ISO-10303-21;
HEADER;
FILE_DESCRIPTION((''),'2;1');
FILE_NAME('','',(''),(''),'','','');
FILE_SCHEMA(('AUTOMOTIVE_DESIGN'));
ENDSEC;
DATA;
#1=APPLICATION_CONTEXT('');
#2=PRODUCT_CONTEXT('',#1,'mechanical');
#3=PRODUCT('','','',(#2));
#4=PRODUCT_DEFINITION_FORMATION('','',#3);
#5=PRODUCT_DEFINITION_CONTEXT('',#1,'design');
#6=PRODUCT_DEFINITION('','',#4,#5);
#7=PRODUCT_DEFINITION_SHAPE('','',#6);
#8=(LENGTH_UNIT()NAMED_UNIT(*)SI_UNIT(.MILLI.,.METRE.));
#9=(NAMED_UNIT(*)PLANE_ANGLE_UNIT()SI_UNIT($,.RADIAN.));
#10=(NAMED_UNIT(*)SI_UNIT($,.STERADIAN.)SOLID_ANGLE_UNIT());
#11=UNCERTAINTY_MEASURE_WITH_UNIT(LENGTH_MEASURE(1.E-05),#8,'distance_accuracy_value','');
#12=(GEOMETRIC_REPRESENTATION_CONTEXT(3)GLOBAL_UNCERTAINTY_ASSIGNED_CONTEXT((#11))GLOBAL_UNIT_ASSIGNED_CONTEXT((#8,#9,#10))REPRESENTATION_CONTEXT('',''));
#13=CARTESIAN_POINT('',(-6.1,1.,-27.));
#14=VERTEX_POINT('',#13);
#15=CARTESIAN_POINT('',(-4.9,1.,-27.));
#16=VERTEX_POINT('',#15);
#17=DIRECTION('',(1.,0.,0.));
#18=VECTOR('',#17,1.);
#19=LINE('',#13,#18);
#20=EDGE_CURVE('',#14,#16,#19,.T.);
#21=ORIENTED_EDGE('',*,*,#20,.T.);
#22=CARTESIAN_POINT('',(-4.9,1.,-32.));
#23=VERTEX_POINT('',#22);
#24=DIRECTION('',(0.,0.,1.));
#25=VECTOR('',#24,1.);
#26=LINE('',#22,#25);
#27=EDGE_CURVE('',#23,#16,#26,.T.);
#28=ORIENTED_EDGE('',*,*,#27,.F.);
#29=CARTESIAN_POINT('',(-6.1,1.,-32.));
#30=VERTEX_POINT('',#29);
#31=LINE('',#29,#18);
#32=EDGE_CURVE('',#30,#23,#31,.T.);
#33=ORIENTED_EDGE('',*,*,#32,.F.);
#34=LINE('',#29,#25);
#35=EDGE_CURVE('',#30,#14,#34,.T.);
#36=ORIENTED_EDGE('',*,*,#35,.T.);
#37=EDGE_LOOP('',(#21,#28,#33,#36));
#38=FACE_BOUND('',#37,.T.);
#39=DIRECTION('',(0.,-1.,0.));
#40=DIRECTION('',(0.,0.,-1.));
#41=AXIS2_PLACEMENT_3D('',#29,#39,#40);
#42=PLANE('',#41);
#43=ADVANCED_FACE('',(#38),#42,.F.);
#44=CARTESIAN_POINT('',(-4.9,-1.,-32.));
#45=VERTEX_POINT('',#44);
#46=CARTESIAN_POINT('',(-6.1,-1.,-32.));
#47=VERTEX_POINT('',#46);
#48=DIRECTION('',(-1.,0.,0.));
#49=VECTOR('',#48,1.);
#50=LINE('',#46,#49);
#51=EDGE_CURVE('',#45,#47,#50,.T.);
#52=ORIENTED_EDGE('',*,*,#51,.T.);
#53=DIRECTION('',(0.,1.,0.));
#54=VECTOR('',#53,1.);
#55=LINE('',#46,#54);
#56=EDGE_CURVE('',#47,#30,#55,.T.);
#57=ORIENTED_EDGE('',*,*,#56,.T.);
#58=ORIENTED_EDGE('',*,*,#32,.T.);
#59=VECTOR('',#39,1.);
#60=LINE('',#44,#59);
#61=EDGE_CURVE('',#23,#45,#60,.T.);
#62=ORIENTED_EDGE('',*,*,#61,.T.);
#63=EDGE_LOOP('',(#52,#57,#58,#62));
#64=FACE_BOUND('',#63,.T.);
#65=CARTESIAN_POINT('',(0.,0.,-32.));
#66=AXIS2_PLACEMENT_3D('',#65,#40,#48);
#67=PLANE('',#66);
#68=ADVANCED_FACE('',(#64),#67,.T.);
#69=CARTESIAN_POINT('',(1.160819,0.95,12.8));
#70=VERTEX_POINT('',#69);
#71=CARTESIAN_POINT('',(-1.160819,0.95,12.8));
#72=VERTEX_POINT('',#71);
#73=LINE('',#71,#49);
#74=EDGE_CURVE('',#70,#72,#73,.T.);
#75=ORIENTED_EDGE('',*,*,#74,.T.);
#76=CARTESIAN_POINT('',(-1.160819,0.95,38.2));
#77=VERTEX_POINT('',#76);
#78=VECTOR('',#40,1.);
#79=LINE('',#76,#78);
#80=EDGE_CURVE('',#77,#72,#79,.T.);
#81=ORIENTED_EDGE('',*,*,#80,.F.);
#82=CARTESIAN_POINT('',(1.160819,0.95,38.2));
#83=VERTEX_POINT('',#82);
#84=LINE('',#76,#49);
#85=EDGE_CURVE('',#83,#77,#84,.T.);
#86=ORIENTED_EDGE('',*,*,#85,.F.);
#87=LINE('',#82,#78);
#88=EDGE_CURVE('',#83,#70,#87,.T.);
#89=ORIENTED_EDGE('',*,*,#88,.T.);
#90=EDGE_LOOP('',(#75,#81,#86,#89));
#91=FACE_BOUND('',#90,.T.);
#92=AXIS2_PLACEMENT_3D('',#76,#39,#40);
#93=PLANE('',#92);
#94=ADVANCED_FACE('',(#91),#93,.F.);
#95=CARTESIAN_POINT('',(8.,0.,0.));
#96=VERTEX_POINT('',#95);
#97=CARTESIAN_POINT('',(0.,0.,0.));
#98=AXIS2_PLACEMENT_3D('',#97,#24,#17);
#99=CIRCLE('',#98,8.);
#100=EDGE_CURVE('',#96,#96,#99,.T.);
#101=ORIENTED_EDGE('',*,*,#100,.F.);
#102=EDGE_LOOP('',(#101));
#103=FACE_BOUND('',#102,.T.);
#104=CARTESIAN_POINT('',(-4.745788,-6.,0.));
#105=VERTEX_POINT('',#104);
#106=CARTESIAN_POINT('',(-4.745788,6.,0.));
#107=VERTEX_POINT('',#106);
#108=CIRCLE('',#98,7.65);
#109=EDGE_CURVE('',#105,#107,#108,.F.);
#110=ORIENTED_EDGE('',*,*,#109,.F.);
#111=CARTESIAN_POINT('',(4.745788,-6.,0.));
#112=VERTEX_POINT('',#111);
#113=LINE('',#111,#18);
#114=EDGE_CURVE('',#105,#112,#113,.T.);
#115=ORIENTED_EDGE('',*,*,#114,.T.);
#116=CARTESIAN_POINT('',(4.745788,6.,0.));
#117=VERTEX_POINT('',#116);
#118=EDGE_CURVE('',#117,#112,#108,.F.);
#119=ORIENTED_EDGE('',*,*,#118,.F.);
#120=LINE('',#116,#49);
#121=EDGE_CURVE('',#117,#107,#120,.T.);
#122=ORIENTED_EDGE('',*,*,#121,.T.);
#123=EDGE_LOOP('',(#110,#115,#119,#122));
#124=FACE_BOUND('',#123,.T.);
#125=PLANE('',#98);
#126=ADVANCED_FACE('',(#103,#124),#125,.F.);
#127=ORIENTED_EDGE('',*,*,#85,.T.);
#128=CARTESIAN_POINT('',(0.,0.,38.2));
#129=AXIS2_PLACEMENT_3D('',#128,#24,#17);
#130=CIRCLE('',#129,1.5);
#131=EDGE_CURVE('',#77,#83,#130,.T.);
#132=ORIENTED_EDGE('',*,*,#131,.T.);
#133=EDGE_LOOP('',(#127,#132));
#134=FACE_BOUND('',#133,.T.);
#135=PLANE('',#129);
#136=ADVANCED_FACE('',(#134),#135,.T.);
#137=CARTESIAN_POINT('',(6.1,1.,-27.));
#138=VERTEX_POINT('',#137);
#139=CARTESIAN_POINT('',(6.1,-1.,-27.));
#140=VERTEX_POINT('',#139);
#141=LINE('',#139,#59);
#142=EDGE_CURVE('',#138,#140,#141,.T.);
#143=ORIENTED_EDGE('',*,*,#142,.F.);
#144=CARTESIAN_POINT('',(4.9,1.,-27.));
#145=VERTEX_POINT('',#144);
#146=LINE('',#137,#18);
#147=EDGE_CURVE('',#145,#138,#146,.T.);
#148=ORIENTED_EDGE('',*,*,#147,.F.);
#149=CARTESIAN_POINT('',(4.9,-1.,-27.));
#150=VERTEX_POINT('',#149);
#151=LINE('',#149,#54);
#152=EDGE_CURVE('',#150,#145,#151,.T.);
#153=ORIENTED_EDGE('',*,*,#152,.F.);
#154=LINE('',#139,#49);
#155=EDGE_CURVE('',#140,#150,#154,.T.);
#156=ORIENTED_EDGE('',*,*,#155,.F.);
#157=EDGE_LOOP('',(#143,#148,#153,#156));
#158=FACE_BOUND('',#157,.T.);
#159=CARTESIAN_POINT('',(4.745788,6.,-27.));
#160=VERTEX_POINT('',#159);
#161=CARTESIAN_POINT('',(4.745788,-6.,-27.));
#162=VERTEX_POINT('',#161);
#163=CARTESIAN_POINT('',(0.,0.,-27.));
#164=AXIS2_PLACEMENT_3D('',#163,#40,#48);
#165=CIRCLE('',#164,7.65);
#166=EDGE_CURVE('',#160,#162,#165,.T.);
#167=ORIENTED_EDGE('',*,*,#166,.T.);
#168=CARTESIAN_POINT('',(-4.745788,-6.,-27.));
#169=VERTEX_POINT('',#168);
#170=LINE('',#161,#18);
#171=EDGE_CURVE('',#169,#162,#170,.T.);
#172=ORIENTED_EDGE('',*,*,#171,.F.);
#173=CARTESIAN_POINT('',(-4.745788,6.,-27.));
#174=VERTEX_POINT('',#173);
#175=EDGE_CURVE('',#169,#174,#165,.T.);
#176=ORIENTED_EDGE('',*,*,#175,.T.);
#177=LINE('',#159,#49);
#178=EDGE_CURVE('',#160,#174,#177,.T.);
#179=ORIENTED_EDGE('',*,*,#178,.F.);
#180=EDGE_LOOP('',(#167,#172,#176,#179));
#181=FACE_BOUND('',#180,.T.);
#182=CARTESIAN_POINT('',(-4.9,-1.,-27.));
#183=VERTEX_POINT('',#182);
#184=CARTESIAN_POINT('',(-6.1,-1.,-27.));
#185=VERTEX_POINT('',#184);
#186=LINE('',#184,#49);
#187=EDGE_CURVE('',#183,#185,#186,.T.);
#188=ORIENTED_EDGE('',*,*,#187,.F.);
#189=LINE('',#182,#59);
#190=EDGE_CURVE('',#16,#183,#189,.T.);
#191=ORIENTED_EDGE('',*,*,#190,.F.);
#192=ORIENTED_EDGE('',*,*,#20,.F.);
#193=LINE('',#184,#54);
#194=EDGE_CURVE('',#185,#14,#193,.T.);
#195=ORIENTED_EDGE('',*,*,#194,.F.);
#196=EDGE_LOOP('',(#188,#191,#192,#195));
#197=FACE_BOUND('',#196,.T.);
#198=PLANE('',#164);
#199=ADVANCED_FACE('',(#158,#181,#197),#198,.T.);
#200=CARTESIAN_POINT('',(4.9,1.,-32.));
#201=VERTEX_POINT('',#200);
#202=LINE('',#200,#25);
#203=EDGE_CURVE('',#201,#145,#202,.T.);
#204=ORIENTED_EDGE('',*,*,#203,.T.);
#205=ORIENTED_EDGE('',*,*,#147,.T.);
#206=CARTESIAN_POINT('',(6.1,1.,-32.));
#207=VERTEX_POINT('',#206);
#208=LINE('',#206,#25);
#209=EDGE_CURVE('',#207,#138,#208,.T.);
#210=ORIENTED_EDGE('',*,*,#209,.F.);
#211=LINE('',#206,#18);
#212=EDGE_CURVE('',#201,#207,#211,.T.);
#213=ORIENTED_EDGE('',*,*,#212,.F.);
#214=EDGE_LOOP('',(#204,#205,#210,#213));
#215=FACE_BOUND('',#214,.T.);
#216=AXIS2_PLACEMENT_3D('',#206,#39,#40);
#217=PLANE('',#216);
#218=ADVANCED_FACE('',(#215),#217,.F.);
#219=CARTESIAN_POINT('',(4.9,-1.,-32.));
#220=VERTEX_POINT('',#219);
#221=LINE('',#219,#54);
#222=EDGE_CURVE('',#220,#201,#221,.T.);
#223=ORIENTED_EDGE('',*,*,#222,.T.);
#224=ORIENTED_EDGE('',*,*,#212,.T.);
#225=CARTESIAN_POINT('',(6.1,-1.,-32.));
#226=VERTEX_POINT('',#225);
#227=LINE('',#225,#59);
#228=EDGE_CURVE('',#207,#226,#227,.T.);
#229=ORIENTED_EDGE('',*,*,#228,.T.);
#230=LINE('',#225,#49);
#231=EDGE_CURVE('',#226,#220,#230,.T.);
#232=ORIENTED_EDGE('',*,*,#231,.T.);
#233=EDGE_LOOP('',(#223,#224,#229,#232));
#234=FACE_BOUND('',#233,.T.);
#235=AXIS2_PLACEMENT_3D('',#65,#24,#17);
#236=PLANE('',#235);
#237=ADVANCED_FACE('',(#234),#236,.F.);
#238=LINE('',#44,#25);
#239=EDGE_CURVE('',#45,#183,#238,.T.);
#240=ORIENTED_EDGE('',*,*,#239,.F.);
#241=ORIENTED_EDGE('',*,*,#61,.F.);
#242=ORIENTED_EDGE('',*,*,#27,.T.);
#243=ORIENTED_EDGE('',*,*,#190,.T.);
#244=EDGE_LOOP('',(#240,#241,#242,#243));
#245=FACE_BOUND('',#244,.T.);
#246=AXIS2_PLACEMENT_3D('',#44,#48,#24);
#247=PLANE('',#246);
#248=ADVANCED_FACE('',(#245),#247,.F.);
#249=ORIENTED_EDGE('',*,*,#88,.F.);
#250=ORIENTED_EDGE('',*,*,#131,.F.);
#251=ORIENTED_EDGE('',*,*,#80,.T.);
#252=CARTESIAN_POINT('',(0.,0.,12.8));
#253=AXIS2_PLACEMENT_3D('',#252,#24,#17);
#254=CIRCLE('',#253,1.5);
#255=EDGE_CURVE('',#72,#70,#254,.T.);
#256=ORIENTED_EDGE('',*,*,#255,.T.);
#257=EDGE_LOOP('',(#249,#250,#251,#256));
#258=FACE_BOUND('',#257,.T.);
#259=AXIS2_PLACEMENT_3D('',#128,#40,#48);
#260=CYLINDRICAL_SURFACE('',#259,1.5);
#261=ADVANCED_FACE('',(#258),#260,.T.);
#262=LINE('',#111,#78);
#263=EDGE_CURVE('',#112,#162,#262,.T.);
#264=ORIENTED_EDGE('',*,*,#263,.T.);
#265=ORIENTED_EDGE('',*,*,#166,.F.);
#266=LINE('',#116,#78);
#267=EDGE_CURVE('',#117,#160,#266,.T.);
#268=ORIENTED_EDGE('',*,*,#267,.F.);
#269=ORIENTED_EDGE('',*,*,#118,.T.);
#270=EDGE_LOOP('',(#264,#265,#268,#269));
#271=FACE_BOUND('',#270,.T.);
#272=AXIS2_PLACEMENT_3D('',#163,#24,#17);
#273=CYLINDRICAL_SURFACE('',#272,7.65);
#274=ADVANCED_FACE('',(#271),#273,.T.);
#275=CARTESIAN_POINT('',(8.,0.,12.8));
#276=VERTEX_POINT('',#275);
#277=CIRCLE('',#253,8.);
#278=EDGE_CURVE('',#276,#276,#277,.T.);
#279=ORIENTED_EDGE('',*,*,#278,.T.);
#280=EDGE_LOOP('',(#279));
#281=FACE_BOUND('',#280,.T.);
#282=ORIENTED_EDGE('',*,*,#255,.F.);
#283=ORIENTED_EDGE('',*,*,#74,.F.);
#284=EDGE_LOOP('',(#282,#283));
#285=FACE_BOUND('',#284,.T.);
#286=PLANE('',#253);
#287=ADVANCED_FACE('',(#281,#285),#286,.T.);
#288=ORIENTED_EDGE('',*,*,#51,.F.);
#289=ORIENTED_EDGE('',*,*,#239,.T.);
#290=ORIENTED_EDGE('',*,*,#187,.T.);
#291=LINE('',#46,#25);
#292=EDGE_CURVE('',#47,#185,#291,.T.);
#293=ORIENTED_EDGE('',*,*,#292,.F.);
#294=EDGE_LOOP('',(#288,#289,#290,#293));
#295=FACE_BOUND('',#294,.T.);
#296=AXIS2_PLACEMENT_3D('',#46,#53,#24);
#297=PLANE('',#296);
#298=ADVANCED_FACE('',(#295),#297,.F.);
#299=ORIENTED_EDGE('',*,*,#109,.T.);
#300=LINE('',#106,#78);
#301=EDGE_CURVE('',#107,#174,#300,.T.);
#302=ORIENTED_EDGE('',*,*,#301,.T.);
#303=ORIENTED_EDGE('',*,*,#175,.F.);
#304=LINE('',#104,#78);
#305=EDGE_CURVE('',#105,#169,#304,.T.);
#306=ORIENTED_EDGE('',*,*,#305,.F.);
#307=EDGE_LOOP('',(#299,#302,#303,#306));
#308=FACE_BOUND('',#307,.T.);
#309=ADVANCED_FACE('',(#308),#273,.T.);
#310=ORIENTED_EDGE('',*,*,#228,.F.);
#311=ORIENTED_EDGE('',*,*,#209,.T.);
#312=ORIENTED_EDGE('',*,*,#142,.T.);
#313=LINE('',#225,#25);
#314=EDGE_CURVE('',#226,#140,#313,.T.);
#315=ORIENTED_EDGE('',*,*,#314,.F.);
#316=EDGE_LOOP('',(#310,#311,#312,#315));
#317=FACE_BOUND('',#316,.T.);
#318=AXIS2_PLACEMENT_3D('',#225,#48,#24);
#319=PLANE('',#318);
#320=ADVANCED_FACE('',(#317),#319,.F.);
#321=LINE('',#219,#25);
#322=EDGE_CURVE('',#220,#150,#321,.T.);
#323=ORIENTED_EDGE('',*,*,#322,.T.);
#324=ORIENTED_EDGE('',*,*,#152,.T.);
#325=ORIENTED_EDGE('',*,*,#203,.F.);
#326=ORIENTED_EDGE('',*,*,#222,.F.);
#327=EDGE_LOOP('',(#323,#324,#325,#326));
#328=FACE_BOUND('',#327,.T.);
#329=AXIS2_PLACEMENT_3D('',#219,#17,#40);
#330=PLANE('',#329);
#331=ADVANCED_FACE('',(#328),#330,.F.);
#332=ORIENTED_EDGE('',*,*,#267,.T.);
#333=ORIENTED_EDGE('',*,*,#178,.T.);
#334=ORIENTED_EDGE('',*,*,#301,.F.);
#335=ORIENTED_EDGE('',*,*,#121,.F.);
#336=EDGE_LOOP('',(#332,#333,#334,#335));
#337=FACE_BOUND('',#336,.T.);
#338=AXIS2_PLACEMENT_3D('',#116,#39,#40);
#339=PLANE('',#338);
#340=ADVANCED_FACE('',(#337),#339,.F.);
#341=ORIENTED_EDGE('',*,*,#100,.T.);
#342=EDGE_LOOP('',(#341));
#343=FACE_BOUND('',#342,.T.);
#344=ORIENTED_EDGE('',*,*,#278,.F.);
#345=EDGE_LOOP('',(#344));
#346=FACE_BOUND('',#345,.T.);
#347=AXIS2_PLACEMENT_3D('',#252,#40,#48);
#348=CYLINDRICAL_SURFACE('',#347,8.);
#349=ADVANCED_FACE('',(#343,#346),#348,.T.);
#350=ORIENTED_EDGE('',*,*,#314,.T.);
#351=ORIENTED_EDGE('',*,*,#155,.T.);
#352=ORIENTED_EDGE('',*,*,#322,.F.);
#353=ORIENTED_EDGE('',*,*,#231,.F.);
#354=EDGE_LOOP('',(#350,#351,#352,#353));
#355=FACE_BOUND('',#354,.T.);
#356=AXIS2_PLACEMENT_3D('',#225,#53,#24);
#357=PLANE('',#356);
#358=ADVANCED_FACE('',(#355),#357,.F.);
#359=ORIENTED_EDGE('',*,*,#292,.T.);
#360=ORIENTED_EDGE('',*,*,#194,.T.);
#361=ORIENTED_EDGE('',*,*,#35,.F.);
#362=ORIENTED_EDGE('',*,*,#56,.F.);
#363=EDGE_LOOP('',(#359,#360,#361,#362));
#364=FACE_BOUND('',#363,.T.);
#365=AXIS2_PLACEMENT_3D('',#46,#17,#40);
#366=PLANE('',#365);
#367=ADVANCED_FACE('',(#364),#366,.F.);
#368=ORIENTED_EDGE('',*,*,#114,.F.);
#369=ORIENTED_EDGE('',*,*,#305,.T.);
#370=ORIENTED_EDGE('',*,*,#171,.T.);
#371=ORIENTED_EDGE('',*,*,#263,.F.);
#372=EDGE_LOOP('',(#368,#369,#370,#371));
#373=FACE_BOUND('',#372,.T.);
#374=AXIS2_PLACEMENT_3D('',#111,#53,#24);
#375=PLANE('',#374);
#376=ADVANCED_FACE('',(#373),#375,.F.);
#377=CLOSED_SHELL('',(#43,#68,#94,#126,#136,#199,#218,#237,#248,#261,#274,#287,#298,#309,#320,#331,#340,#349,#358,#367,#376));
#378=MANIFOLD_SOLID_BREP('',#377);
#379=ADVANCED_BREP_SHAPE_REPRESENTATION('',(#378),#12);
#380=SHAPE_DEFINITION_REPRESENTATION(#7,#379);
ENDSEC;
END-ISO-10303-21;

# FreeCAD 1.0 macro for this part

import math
import FreeCAD as App
import Part
import Sketcher
Q = App.Units.Quantity


def add_polygon(sketch, points):
    """Adds a closed chain of lines whose ends are joined by coincident constraints."""
    first, n = sketch.GeometryCount, len(points)
    for a, b in zip(points, points[1:] + points[:1]):
        sketch.addGeometry(Part.LineSegment(App.Vector(*a, 0), App.Vector(*b, 0)), False)
    for i in range(n):
        sketch.addConstraint(Sketcher.Constraint("Coincident", first + i, 2, first + (i + 1) % n, 1))

doc = App.newDocument("Part")
body = doc.addObject("PartDesign::Body", "Body")

sketch1 = doc.addObject("Sketcher::SketchObject", "Sketch")
body.addObject(sketch1)
sketch1.AttachmentSupport = (doc.XY_Plane, [""])
sketch1.MapMode = "FlatFace"
sketch1.addGeometry(Part.Circle(App.Vector(0, 0, 0), App.Vector(0, 0, 1), 8), False)
sketch1.addConstraint([
    Sketcher.Constraint("Coincident", 0, 3, -1, 1),
    Sketcher.Constraint("Diameter", 0, Q("16 mm")),
])
pad1 = doc.addObject("PartDesign::Pad", "Pad")
body.addObject(pad1)
pad1.Profile = sketch1
pad1.Length = 12.8

sketch2 = doc.addObject("Sketcher::SketchObject", "Sketch001")
body.addObject(sketch2)
sketch2.AttachmentSupport = (doc.XY_Plane, [""])
sketch2.MapMode = "FlatFace"
sketch2.addGeometry(Part.Circle(App.Vector(0, 0, 0), App.Vector(0, 0, 1), 8), False)
sketch2.addConstraint([
    Sketcher.Constraint("Coincident", 0, 3, -1, 1),
    Sketcher.Constraint("Diameter", 0, Q("15.3 mm")),
])
pad2 = doc.addObject("PartDesign::Pad", "Pad001")
body.addObject(pad2)
pad2.Profile = sketch2
pad2.Length = 27
pad2.Reversed = True

sketch3 = doc.addObject("Sketcher::SketchObject", "Sketch002")
body.addObject(sketch3)
sketch3.AttachmentSupport = (doc.XY_Plane, [""])
sketch3.MapMode = "FlatFace"
sketch3.AttachmentOffset = App.Placement(App.Vector(0, 0, -27), App.Rotation())
sketch3.addGeometry([
    Part.LineSegment(App.Vector(-5, -6, 0), App.Vector(5, -6, 0)),
    Part.ArcOfCircle(Part.Circle(App.Vector(0, 0, 0), App.Vector(0, 0, 1), 8), math.radians(-128), math.radians(-52)),
    Part.LineSegment(App.Vector(5, 6, 0), App.Vector(-5, 6, 0)),
    Part.ArcOfCircle(Part.Circle(App.Vector(0, 0, 0), App.Vector(0, 0, 1), 8), math.radians(52), math.radians(128)),
], False)
sketch3.addConstraint([
    Sketcher.Constraint("Coincident", 0, 1, 1, 1),
    Sketcher.Constraint("Coincident", 1, 2, 0, 2),
    Sketcher.Constraint("Coincident", 2, 1, 3, 1),
    Sketcher.Constraint("Coincident", 3, 2, 2, 2),
    Sketcher.Constraint("Horizontal", 0),
    Sketcher.Constraint("Horizontal", 2),
    Sketcher.Constraint("Coincident", 1, 3, -1, 1),
    Sketcher.Constraint("Coincident", 3, 3, -1, 1),
    Sketcher.Constraint("Equal", 1, 3),
    Sketcher.Constraint("Vertical", 1, 2, 2, 1),
    Sketcher.Constraint("Radius", 1, Q("7.65 mm")),
    Sketcher.Constraint("DistanceY", 0, 1, -1, 1, Q("6 mm")),
])
pocket1 = doc.addObject("PartDesign::Pocket", "Pocket")
body.addObject(pocket1)
pocket1.Profile = sketch3
pocket1.Length = 27
pocket1.Reversed = True

sketch4 = doc.addObject("Sketcher::SketchObject", "Sketch003")
body.addObject(sketch4)
sketch4.AttachmentSupport = (doc.XY_Plane, [""])
sketch4.MapMode = "FlatFace"
sketch4.AttachmentOffset = App.Placement(App.Vector(0, 0, 12.8), App.Rotation())
sketch4.addGeometry([
    Part.LineSegment(App.Vector(1.2, 0.9, 0), App.Vector(-1.2, 0.9, 0)),
    Part.ArcOfCircle(Part.Circle(App.Vector(0, 0, 0), App.Vector(0, 0, 1), 1.5), math.radians(141), math.radians(399)),
], False)
sketch4.addConstraint([
    Sketcher.Constraint("Coincident", 0, 1, 1, 2),
    Sketcher.Constraint("Coincident", 1, 1, 0, 2),
    Sketcher.Constraint("Horizontal", 0),
    Sketcher.Constraint("Coincident", 1, 3, -1, 1),
    Sketcher.Constraint("Radius", 1, Q("1.5 mm")),
    Sketcher.Constraint("DistanceY", -1, 1, 0, 1, Q("0.95 mm")),
])
pad3 = doc.addObject("PartDesign::Pad", "Pad002")
body.addObject(pad3)
pad3.Profile = sketch4
pad3.Length = 25.4

sketch5 = doc.addObject("Sketcher::SketchObject", "Sketch004")
body.addObject(sketch5)
sketch5.AttachmentSupport = (doc.XY_Plane, [""])
sketch5.MapMode = "FlatFace"
sketch5.AttachmentOffset = App.Placement(App.Vector(0, 0, -27), App.Rotation())
add_polygon(sketch5, [(6.1, 1), (6.1, -1), (4.9, -1), (4.9, 1)])
add_polygon(sketch5, [(-4.9, 1), (-4.9, -1), (-6.1, -1), (-6.1, 1)])
sketch5.addConstraint([
    Sketcher.Constraint("Vertical", 0),
    Sketcher.Constraint("Horizontal", 1),
    Sketcher.Constraint("Vertical", 2),
    Sketcher.Constraint("Horizontal", 3),
    Sketcher.Constraint("Vertical", 4),
    Sketcher.Constraint("Horizontal", 5),
    Sketcher.Constraint("Vertical", 6),
    Sketcher.Constraint("Horizontal", 7),
    Sketcher.Constraint("Symmetric", 2, 2, 4, 2, -1, 1),
    Sketcher.Constraint("Symmetric", 0, 2, 6, 2, -1, 1),
    Sketcher.Constraint("Horizontal", 1, 2, 4, 2),
    Sketcher.Constraint("DistanceY", 0, 2, 0, 1, Q("2 mm")),
    Sketcher.Constraint("DistanceX", 1, 2, 1, 1, Q("1.2 mm")),
    Sketcher.Constraint("DistanceX", 4, 2, 0, 2, Q("11 mm")),
])
pad4 = doc.addObject("PartDesign::Pad", "Pad003")
body.addObject(pad4)
pad4.Profile = sketch5
pad4.Length = 5
pad4.Reversed = True

doc.recompute()
